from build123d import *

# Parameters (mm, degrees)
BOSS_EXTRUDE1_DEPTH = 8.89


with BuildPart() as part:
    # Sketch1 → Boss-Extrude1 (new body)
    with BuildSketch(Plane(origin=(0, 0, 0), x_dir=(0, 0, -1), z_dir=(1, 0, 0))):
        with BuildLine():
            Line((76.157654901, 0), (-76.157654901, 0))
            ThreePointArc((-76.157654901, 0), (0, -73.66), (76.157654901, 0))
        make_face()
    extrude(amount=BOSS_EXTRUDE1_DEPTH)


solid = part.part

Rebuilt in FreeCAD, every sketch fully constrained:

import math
import FreeCAD as App
import Part
import Sketcher

V = App.Vector
Q = App.Units.Quantity

doc = App.newDocument("Part")
body = doc.addObject("PartDesign::Body", "Body")

# Sketch on YZ plane
sketch1 = doc.addObject("Sketcher::SketchObject", "Sketch")
body.addObject(sketch1)
sketch1.AttachmentSupport = (doc.YZ_Plane, [""])
sketch1.MapMode = "FlatFace"
sketch1.addGeometry(Part.LineSegment(V(0, -76, 0), V(0, 76, 0)), False)
sketch1.addGeometry(Part.ArcOfCircle(Part.Circle(V(3, 0, 0), V(0, 0, 1), 76), math.radians(92), math.radians(268)), False)
sketch1.addConstraint(Sketcher.Constraint("Coincident", 0, 1, 1, 2))
sketch1.addConstraint(Sketcher.Constraint("Coincident", 1, 1, 0, 2))
sketch1.addConstraint(Sketcher.Constraint("Vertical", 0))
sketch1.addConstraint(Sketcher.Constraint("Symmetric", 0, 1, 1, 1, -1, 1))
sketch1.addConstraint(Sketcher.Constraint("Radius", 1, Q("3 in")))
sketch1.addConstraint(Sketcher.Constraint("DistanceX", -1, 1, 1, 3, Q("0.1 in")))
pad1 = doc.addObject("PartDesign::Pad", "Pad")
body.addObject(pad1)
pad1.Profile = sketch1
pad1.Length = Q("0.35 in")

doc.recompute()
